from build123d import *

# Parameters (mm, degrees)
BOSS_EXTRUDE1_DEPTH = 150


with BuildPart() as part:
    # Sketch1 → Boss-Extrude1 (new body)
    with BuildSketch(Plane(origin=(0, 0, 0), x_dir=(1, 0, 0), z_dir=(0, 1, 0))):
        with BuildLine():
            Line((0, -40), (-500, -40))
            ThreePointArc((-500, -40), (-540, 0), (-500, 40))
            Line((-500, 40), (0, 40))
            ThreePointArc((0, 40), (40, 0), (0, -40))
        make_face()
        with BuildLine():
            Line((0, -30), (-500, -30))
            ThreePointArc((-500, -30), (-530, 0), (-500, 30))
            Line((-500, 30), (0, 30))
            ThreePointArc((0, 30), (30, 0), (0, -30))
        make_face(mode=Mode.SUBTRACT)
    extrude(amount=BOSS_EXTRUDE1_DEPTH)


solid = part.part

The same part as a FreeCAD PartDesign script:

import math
import FreeCAD as App
import Part
import Sketcher

V = App.Vector
Q = App.Units.Quantity

doc = App.newDocument("Part")
body = doc.addObject("PartDesign::Body", "Body")

# Sketch on XZ plane
sketch1 = body.newObject("Sketcher::SketchObject", "Sketch")
sketch1.AttachmentSupport = (doc.getObject("XZ_Plane"), [""])
sketch1.MapMode = "FlatFace"
sketch1.addGeometry(Part.LineSegment(V(-500, 40, 0), V(0, 40, 0)), False)
sketch1.addGeometry(Part.ArcOfCircle(Part.Circle(V(0, 0, 0), V(0, 0, 1), 40), math.radians(-90), math.radians(90)), False)
sketch1.addGeometry(Part.LineSegment(V(0, -40, 0), V(-500, -40, 0)), False)
sketch1.addGeometry(Part.ArcOfCircle(Part.Circle(V(-500, 0, 0), V(0, 0, 1), 40), math.radians(90), math.radians(270)), False)
sketch1.addGeometry(Part.LineSegment(V(0, 30, 0), V(-500, 30, 0)), False)
sketch1.addGeometry(Part.ArcOfCircle(Part.Circle(V(-500, 0, 0), V(0, 0, 1), 30), math.radians(90), math.radians(270)), False)
sketch1.addGeometry(Part.LineSegment(V(-500, -30, 0), V(0, -30, 0)), False)
sketch1.addGeometry(Part.ArcOfCircle(Part.Circle(V(0, 0, 0), V(0, 0, 1), 30), math.radians(-90), math.radians(90)), False)
sketch1.addConstraint(Sketcher.Constraint("Tangent", 0, 2, 1, 2))
sketch1.addConstraint(Sketcher.Constraint("Tangent", 1, 1, 2, 1))
sketch1.addConstraint(Sketcher.Constraint("Tangent", 2, 2, 3, 2))
sketch1.addConstraint(Sketcher.Constraint("Tangent", 3, 1, 0, 1))
sketch1.addConstraint(Sketcher.Constraint("Tangent", 4, 2, 5, 1))
sketch1.addConstraint(Sketcher.Constraint("Tangent", 5, 2, 6, 1))
sketch1.addConstraint(Sketcher.Constraint("Tangent", 6, 2, 7, 1))
sketch1.addConstraint(Sketcher.Constraint("Tangent", 7, 2, 4, 1))
sketch1.addConstraint(Sketcher.Constraint("Horizontal", 0))
sketch1.addConstraint(Sketcher.Constraint("Horizontal", 2))
sketch1.addConstraint(Sketcher.Constraint("Horizontal", 4))
sketch1.addConstraint(Sketcher.Constraint("Horizontal", 6))
sketch1.addConstraint(Sketcher.Constraint("Coincident", 1, 3, -1, 1))
sketch1.addConstraint(Sketcher.Constraint("Coincident", 7, 3, -1, 1))
sketch1.addConstraint(Sketcher.Constraint("Vertical", 5, 3, 2, 2))
sketch1.addConstraint(Sketcher.Constraint("Radius", 1, Q("40 mm")))
sketch1.addConstraint(Sketcher.Constraint("Radius", 5, Q("30 mm")))
sketch1.addConstraint(Sketcher.Constraint("DistanceX", 0, 1, 0, 2, Q("500 mm")))
pad1 = body.newObject("PartDesign::Pad", "Pad")
pad1.Profile = sketch1
pad1.Length = 150
pad1.Reversed = True

doc.recompute()
